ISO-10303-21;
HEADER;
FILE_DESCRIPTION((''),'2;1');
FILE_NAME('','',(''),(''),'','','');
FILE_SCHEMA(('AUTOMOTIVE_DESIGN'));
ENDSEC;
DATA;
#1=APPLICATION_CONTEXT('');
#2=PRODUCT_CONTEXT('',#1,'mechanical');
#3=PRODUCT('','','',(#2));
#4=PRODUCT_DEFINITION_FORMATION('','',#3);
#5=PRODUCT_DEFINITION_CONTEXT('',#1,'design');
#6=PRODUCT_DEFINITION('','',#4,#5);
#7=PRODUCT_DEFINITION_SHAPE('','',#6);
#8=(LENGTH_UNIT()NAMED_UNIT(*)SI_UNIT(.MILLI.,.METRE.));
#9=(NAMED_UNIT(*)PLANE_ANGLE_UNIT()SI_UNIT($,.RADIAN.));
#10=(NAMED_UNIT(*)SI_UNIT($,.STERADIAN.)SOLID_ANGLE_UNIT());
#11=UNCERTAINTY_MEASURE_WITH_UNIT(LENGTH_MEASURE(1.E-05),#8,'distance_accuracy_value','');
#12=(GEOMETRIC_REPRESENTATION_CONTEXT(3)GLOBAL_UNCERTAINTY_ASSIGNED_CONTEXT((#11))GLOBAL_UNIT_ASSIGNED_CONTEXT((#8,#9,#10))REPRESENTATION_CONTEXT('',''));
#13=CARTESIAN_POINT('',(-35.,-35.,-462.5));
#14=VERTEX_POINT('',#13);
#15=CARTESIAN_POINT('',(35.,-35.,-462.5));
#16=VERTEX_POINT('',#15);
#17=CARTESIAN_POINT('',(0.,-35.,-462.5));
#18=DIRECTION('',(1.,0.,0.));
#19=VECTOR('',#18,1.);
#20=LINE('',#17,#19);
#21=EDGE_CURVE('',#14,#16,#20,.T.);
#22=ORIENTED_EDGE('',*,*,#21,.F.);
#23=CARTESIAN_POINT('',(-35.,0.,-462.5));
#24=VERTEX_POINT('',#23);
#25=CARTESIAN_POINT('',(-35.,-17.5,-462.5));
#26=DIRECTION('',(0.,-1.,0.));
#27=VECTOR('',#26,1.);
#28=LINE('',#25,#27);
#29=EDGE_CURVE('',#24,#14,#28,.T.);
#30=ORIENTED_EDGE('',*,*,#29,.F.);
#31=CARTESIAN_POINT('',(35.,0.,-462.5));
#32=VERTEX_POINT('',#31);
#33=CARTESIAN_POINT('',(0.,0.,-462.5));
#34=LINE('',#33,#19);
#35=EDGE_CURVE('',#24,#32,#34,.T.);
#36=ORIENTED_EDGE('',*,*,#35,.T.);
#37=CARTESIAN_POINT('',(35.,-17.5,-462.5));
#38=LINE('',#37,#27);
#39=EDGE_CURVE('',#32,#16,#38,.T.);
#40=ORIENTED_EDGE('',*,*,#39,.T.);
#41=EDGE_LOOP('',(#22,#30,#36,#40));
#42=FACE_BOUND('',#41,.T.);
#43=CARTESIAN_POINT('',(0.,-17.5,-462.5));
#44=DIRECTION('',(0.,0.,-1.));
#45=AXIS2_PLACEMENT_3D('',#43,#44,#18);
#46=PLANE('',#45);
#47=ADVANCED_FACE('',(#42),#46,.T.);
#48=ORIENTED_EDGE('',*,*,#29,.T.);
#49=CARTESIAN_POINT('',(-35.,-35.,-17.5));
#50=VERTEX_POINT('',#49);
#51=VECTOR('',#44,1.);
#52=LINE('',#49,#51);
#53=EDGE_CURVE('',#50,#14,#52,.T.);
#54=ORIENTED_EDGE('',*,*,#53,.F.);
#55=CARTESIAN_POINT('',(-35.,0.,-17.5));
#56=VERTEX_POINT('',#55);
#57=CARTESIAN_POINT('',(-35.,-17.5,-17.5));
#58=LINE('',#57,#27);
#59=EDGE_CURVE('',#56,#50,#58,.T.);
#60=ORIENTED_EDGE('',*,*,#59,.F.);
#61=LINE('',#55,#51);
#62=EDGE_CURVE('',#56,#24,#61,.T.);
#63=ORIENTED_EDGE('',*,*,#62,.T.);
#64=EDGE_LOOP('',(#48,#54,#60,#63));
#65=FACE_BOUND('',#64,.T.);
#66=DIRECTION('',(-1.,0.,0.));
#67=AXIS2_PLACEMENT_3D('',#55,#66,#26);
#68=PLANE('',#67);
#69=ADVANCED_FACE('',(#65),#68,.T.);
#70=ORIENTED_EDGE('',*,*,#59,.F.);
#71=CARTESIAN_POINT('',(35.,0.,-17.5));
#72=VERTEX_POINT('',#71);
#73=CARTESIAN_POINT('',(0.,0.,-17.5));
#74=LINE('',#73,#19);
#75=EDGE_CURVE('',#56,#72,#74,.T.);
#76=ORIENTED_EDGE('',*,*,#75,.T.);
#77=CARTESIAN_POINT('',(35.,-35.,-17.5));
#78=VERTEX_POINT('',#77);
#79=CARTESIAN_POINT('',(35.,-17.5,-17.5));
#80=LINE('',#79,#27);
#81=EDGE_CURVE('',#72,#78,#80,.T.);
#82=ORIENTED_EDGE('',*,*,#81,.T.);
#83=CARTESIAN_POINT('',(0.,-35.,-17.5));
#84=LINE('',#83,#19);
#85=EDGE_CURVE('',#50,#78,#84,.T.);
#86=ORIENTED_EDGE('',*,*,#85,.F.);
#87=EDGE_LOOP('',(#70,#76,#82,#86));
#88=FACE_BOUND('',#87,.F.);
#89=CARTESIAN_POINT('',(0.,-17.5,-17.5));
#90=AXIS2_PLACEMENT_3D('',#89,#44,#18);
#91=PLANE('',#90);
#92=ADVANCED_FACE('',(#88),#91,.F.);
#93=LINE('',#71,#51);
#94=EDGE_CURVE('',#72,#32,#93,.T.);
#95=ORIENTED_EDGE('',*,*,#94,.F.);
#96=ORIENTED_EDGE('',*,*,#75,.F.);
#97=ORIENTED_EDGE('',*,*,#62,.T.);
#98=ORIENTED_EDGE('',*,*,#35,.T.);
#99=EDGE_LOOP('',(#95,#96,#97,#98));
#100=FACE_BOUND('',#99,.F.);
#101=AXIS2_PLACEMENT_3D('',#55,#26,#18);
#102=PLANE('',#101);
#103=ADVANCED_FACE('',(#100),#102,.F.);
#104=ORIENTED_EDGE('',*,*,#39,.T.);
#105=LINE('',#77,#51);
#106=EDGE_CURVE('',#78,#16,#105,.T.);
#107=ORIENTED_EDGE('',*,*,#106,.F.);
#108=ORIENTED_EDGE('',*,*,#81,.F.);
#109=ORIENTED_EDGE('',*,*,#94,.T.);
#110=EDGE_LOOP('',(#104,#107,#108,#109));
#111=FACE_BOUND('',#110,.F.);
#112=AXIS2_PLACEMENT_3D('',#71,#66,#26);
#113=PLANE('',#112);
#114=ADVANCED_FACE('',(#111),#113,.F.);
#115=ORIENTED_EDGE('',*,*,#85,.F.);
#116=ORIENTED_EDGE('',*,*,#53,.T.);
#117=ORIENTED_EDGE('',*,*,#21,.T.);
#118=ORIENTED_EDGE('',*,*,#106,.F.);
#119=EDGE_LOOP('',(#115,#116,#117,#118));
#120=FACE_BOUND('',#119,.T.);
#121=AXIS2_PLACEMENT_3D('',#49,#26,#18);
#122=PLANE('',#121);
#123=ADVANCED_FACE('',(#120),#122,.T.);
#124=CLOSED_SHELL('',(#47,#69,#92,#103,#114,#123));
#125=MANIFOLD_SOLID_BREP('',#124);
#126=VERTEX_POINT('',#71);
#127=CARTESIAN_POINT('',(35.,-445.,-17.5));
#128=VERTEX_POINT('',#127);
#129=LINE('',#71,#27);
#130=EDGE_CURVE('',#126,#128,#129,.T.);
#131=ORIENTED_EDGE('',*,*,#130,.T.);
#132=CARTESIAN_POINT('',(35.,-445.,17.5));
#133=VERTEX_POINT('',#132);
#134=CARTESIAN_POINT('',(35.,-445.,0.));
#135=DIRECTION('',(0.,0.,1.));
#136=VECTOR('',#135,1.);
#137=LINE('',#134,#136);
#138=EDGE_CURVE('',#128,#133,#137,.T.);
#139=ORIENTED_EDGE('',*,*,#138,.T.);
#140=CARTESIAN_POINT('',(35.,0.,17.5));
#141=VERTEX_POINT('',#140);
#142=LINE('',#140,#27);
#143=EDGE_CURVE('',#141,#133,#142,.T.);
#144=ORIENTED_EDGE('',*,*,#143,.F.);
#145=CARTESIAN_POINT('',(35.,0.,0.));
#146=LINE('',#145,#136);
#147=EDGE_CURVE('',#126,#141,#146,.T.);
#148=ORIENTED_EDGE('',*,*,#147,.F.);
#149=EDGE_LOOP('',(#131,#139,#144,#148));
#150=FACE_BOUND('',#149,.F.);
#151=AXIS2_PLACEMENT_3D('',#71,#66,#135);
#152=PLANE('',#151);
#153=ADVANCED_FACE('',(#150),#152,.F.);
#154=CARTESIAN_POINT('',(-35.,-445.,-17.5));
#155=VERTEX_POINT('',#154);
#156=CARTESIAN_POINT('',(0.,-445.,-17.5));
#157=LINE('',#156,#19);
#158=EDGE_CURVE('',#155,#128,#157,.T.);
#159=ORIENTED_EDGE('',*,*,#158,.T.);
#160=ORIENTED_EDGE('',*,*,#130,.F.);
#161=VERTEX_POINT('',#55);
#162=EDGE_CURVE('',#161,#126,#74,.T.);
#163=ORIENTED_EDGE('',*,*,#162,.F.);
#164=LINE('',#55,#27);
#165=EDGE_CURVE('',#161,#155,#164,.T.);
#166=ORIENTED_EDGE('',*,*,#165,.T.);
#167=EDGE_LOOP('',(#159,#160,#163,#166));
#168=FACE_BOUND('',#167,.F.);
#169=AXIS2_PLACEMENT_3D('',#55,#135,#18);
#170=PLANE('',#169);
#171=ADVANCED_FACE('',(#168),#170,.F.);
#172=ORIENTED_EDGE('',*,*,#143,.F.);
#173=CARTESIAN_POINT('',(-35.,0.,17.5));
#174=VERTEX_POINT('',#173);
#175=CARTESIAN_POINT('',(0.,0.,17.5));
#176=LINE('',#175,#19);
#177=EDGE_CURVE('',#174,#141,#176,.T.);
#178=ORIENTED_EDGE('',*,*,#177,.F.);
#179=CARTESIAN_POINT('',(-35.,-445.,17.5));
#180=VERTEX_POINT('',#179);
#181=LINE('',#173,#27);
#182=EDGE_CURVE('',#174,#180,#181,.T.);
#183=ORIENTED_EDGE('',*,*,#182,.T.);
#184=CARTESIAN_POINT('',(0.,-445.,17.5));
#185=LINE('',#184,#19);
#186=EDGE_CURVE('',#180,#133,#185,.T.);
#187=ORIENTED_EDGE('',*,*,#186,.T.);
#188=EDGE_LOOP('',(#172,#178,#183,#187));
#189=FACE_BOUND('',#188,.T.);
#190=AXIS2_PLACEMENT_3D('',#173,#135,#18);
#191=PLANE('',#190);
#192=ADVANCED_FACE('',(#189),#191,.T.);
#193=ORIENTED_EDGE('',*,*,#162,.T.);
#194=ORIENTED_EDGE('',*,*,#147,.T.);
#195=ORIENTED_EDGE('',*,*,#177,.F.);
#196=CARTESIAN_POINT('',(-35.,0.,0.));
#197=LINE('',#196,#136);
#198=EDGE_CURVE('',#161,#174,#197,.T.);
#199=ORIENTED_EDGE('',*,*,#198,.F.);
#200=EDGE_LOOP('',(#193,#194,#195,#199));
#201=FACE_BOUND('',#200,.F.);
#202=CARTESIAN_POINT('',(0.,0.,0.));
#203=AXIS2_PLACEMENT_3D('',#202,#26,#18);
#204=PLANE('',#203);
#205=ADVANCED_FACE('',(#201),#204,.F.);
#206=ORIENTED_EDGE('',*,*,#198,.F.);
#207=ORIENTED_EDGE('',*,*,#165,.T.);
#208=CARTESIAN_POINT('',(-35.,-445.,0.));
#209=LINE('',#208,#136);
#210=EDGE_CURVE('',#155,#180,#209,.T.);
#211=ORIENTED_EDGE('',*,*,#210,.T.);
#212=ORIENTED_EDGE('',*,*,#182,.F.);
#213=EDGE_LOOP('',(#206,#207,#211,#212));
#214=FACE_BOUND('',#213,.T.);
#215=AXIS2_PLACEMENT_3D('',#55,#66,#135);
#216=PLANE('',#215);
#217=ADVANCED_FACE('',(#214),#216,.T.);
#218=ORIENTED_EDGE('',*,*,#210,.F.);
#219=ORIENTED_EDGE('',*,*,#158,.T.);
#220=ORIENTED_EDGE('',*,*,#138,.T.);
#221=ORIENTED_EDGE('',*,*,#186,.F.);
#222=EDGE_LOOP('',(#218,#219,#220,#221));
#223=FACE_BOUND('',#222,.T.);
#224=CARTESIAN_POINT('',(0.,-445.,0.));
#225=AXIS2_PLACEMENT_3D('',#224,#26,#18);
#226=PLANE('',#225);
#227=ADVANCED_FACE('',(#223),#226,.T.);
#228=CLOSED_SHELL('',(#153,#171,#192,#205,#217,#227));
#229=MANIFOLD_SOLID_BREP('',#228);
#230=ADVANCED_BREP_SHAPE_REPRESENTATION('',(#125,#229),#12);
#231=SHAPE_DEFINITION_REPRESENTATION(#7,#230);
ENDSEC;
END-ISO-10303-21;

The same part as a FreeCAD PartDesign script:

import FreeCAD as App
import Part
import Sketcher
from FreeCAD import Vector
Q = App.Units.Quantity

doc = App.newDocument("Part")
params = doc.addObject("Spreadsheet::Sheet", "Params")
for row, (alias, value) in enumerate([
    ("sketch1_width", "70 mm"),
    ("sketch1_height", "35 mm"),
    ("pad1_length", "445 mm"),
    ("sketch2_width", "70 mm"),
    ("sketch2_height", "35 mm"),
    ("pad2_length", "445 mm"),
], start=1):
    params.set(f"A{row}", alias)
    params.set(f"B{row}", "=" + value)
    params.setAlias(f"B{row}", alias)

body = doc.addObject("PartDesign::Body", "Body")

# Sketch on XZ plane
sketch1 = body.newObject("Sketcher::SketchObject", "Sketch")
sketch1.AttachmentSupport = (doc.getObject("XZ_Plane"), [""])
sketch1.MapMode = "FlatFace"
sketch1.addGeometry(Part.LineSegment(Vector(-35, 18, 0), Vector(-35, -18, 0)), False)
sketch1.addGeometry(Part.LineSegment(Vector(-35, -18, 0), Vector(35, -18, 0)), False)
sketch1.addGeometry(Part.LineSegment(Vector(35, -18, 0), Vector(35, 18, 0)), False)
sketch1.addGeometry(Part.LineSegment(Vector(35, 18, 0), Vector(-35, 18, 0)), False)
sketch1.addConstraint(Sketcher.Constraint("Coincident", 0, 2, 1, 1))
sketch1.addConstraint(Sketcher.Constraint("Coincident", 1, 2, 2, 1))
sketch1.addConstraint(Sketcher.Constraint("Coincident", 2, 2, 3, 1))
sketch1.addConstraint(Sketcher.Constraint("Coincident", 3, 2, 0, 1))
sketch1.addConstraint(Sketcher.Constraint("Vertical", 0))
sketch1.addConstraint(Sketcher.Constraint("Horizontal", 1))
sketch1.addConstraint(Sketcher.Constraint("Vertical", 2))
sketch1.addConstraint(Sketcher.Constraint("Horizontal", 3))
sketch1.addConstraint(Sketcher.Constraint("Symmetric", 0, 2, 2, 2, -1, 1))
sketch1.addConstraint(Sketcher.Constraint("DistanceX", 1, 1, 1, 2, Q("70 mm")))
sketch1.addConstraint(Sketcher.Constraint("DistanceY", 0, 2, 0, 1, Q("35 mm")))
sketch1.setExpression("Constraints[9]", "Params.sketch1_width")
sketch1.setExpression("Constraints[10]", "Params.sketch1_height")
pad1 = body.newObject("PartDesign::Pad", "Pad")
pad1.Profile = sketch1
pad1.setExpression("Length", "Params.pad1_length")
body2 = doc.addObject("PartDesign::Body", "Body001")

# Sketch on XY plane
sketch2 = body2.newObject("Sketcher::SketchObject", "Sketch001")
sketch2.AttachmentSupport = (doc.getObject("XY_Plane001"), [""])
sketch2.MapMode = "FlatFace"
sketch2.AttachmentOffset = App.Placement(Vector(0, 0, -17.5), App.Rotation())
sketch2.addGeometry(Part.LineSegment(Vector(-35, -35, 0), Vector(-35, 0, 0)), False)
sketch2.addGeometry(Part.LineSegment(Vector(-35, 0, 0), Vector(35, 0, 0)), False)
sketch2.addGeometry(Part.LineSegment(Vector(35, 0, 0), Vector(35, -35, 0)), False)
sketch2.addGeometry(Part.LineSegment(Vector(35, -35, 0), Vector(-35, -35, 0)), False)
sketch2.addConstraint(Sketcher.Constraint("Coincident", 0, 2, 1, 1))
sketch2.addConstraint(Sketcher.Constraint("Coincident", 1, 2, 2, 1))
sketch2.addConstraint(Sketcher.Constraint("Coincident", 2, 2, 3, 1))
sketch2.addConstraint(Sketcher.Constraint("Coincident", 3, 2, 0, 1))
sketch2.addConstraint(Sketcher.Constraint("Vertical", 0))
sketch2.addConstraint(Sketcher.Constraint("Horizontal", 1))
sketch2.addConstraint(Sketcher.Constraint("Vertical", 2))
sketch2.addConstraint(Sketcher.Constraint("Horizontal", 3))
sketch2.addConstraint(Sketcher.Constraint("Symmetric", 0, 2, 1, 2, -1, 1))
sketch2.addConstraint(Sketcher.Constraint("DistanceX", 1, 1, 1, 2, Q("70 mm")))
sketch2.addConstraint(Sketcher.Constraint("DistanceY", 0, 1, 0, 2, Q("35 mm")))
sketch2.setExpression("Constraints[9]", "Params.sketch2_width")
sketch2.setExpression("Constraints[10]", "Params.sketch2_height")
pad2 = body2.newObject("PartDesign::Pad", "Pad001")
pad2.Profile = sketch2
pad2.setExpression("Length", "Params.pad2_length")
pad2.Reversed = True

doc.recompute()
